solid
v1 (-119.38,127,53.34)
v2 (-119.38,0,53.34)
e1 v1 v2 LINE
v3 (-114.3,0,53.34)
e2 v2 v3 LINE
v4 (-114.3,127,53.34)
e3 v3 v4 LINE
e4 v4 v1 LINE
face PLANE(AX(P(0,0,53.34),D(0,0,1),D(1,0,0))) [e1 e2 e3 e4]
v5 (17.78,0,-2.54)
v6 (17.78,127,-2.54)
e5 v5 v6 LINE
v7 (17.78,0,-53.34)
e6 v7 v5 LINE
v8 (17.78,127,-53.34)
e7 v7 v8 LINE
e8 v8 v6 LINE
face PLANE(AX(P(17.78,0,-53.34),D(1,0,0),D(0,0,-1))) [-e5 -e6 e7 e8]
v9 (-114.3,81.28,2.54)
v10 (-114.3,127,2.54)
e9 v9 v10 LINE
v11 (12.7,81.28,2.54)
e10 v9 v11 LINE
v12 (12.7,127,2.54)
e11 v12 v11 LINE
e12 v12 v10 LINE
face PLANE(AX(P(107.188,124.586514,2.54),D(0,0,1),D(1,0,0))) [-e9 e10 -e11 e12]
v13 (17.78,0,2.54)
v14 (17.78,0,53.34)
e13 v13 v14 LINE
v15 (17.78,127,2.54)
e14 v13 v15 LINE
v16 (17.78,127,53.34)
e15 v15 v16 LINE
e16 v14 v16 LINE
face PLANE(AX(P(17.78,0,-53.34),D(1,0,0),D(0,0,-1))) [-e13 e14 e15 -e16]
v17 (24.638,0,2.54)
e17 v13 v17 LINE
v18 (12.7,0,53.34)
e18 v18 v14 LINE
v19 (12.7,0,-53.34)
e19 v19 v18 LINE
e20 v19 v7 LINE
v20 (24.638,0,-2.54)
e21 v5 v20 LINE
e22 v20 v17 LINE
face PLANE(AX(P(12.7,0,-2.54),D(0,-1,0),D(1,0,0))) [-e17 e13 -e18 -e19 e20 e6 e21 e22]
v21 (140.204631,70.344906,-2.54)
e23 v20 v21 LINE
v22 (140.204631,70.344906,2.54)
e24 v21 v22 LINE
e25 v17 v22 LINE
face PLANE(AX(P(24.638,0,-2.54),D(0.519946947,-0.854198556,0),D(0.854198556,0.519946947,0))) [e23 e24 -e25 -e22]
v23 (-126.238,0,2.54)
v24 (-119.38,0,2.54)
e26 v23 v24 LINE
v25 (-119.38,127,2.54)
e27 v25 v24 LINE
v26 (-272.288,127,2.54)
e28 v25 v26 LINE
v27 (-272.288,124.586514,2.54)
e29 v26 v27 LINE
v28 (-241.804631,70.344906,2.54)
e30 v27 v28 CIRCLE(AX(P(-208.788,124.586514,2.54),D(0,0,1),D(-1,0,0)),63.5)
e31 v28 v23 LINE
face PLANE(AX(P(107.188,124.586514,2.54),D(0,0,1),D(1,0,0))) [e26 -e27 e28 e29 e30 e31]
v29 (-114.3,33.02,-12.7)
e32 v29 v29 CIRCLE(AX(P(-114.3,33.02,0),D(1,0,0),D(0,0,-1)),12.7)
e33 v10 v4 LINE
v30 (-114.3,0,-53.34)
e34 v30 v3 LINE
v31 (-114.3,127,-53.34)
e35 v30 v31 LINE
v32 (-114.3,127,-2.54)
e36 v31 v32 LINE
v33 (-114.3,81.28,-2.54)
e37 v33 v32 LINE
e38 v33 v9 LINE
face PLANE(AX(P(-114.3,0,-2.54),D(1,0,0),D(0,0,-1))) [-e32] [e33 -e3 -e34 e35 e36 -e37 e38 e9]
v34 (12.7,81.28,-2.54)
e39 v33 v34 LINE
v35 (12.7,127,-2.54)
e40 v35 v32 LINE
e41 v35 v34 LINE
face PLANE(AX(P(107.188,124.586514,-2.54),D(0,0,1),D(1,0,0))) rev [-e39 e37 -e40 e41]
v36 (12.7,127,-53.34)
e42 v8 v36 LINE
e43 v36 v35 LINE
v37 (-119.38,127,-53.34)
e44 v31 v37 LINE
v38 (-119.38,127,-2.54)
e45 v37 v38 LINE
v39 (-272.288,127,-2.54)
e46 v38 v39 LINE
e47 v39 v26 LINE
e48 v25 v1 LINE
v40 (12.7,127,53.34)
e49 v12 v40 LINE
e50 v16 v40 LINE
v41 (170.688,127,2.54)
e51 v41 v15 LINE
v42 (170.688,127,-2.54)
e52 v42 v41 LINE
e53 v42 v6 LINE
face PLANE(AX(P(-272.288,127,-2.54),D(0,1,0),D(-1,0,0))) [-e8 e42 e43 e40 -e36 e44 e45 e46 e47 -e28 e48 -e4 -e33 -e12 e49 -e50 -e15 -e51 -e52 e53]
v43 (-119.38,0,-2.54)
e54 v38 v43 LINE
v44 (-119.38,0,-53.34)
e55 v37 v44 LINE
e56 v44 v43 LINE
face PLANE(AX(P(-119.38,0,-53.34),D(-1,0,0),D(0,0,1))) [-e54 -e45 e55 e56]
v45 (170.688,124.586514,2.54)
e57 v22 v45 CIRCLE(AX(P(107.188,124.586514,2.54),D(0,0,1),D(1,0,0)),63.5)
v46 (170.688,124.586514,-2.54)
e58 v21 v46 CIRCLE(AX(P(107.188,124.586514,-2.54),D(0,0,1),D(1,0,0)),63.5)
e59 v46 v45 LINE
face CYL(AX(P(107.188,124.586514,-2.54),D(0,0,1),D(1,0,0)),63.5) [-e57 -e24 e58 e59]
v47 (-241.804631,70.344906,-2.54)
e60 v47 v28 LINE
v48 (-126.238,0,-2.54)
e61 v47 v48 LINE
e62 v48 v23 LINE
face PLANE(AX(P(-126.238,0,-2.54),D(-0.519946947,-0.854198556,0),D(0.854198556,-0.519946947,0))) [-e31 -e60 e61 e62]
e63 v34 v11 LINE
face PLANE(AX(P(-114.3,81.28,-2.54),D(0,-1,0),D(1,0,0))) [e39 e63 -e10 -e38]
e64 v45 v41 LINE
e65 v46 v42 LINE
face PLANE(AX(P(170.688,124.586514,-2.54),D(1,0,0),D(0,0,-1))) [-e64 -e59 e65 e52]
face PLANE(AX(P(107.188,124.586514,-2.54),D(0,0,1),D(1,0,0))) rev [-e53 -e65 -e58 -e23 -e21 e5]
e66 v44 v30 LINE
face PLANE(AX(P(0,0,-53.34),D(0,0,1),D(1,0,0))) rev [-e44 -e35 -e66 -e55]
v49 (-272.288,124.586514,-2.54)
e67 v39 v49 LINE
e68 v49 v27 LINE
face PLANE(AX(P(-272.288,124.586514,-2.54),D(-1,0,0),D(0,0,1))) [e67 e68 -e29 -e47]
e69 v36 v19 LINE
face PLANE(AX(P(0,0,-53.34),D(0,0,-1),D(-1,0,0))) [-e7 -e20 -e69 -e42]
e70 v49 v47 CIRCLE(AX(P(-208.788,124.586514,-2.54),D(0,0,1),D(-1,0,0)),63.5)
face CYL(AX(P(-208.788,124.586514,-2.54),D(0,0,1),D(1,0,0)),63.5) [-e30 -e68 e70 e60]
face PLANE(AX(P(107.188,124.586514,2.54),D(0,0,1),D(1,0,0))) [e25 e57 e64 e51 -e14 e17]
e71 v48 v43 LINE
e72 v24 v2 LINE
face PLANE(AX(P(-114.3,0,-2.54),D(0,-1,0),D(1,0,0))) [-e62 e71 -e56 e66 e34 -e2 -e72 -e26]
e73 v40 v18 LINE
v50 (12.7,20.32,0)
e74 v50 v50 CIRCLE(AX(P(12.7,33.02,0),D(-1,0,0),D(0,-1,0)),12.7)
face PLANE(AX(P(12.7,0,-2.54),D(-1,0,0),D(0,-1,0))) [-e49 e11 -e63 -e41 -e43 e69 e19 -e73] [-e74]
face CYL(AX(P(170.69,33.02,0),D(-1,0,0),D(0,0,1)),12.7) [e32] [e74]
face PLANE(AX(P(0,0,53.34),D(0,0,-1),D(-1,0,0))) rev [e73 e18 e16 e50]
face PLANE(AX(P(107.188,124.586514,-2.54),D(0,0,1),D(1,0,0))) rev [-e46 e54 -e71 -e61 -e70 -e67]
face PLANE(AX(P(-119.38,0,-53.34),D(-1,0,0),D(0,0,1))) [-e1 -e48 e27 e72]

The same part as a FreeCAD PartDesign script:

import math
import FreeCAD as App
import Part
import Sketcher
Q = App.Units.Quantity


def add_polygon(sketch, points):
    """Adds a closed chain of lines whose ends are joined by coincident constraints."""
    first, n = sketch.GeometryCount, len(points)
    for a, b in zip(points, points[1:] + points[:1]):
        sketch.addGeometry(Part.LineSegment(App.Vector(*a, 0), App.Vector(*b, 0)), False)
    for i in range(n):
        sketch.addConstraint(Sketcher.Constraint("Coincident", first + i, 2, first + (i + 1) % n, 1))

doc = App.newDocument("Part")
body = doc.addObject("PartDesign::Body", "Body")

# Sketch on XY plane
sketch1 = body.newObject("Sketcher::SketchObject", "Sketch")
sketch1.AttachmentSupport = (doc.getObject("XY_Plane"), [""])
sketch1.MapMode = "FlatFace"
sketch1.addGeometry(Part.LineSegment(App.Vector(-126.2, 0, 0), App.Vector(-114.3, 0, 0)), False)
sketch1.addGeometry(Part.LineSegment(App.Vector(-114.3, 0, 0), App.Vector(-114.3, 81.3, 0)), False)
sketch1.addGeometry(Part.LineSegment(App.Vector(-114.3, 81.3, 0), App.Vector(12.7, 81.3, 0)), False)
sketch1.addGeometry(Part.LineSegment(App.Vector(12.7, 81.3, 0), App.Vector(12.7, 0, 0)), False)
sketch1.addGeometry(Part.LineSegment(App.Vector(12.7, 0, 0), App.Vector(24.6, 0, 0)), False)
sketch1.addGeometry(Part.LineSegment(App.Vector(24.6, 0, 0), App.Vector(140.2, 70.3, 0)), False)
sketch1.addGeometry(Part.ArcOfCircle(Part.Circle(App.Vector(107.2, 124.6, 0), App.Vector(0, 0, 1), 63.5), math.radians(-59), math.radians(0)), False)
sketch1.addGeometry(Part.LineSegment(App.Vector(170.7, 124.6, 0), App.Vector(170.7, 127, 0)), False)
sketch1.addGeometry(Part.LineSegment(App.Vector(170.7, 127, 0), App.Vector(-272.3, 127, 0)), False)
sketch1.addGeometry(Part.LineSegment(App.Vector(-272.3, 127, 0), App.Vector(-272.3, 124.6, 0)), False)
sketch1.addGeometry(Part.ArcOfCircle(Part.Circle(App.Vector(-208.8, 124.6, 0), App.Vector(0, 0, 1), 63.5), math.radians(-180), math.radians(-121)), False)
sketch1.addGeometry(Part.LineSegment(App.Vector(-241.8, 70.3, 0), App.Vector(-126.2, 0, 0)), False)
sketch1.addConstraint(Sketcher.Constraint("Coincident", 0, 2, 1, 1))
sketch1.addConstraint(Sketcher.Constraint("Coincident", 1, 2, 2, 1))
sketch1.addConstraint(Sketcher.Constraint("Coincident", 2, 2, 3, 1))
sketch1.addConstraint(Sketcher.Constraint("Coincident", 3, 2, 4, 1))
sketch1.addConstraint(Sketcher.Constraint("Coincident", 4, 2, 5, 1))
sketch1.addConstraint(Sketcher.Constraint("Tangent", 5, 2, 6, 1))
sketch1.addConstraint(Sketcher.Constraint("Tangent", 6, 2, 7, 1))
sketch1.addConstraint(Sketcher.Constraint("Coincident", 7, 2, 8, 1))
sketch1.addConstraint(Sketcher.Constraint("Coincident", 8, 2, 9, 1))
sketch1.addConstraint(Sketcher.Constraint("Tangent", 9, 2, 10, 1))
sketch1.addConstraint(Sketcher.Constraint("Tangent", 10, 2, 11, 1))
sketch1.addConstraint(Sketcher.Constraint("Coincident", 11, 2, 0, 1))
sketch1.addConstraint(Sketcher.Constraint("Horizontal", 0))
sketch1.addConstraint(Sketcher.Constraint("Vertical", 1))
sketch1.addConstraint(Sketcher.Constraint("Horizontal", 2))
sketch1.addConstraint(Sketcher.Constraint("Vertical", 3))
sketch1.addConstraint(Sketcher.Constraint("Horizontal", 4))
sketch1.addConstraint(Sketcher.Constraint("Vertical", 7))
sketch1.addConstraint(Sketcher.Constraint("Horizontal", 8))
sketch1.addConstraint(Sketcher.Constraint("Vertical", 9))
sketch1.addConstraint(Sketcher.Constraint("Equal", 6, 10))
sketch1.addConstraint(Sketcher.Constraint("PointOnObject", 0, 2, -1))
sketch1.addConstraint(Sketcher.Constraint("PointOnObject", 3, 2, -1))
sketch1.addConstraint(Sketcher.Constraint("Horizontal", 6, 3, 10, 3))
sketch1.addConstraint(Sketcher.Constraint("Horizontal", 5, 2, 10, 2))
sketch1.addConstraint(Sketcher.Constraint("Equal", 0, 4))
sketch1.addConstraint(Sketcher.Constraint("Radius", 6, Q("2.5 in")))
sketch1.addConstraint(Sketcher.Constraint("DistanceX", 2, 1, 2, 2, Q("5 in")))
sketch1.addConstraint(Sketcher.Constraint("DistanceY", 1, 1, 1, 2, Q("3.2 in")))
sketch1.addConstraint(Sketcher.Constraint("DistanceY", -1, 1, 7, 2, Q("5 in")))
sketch1.addConstraint(Sketcher.Constraint("DistanceX", 0, 1, 0, 2, Q("0.47 in")))
sketch1.addConstraint(Sketcher.Constraint("DistanceX", 8, 2, 8, 1, Q("17.44 in")))
sketch1.addConstraint(Sketcher.Constraint("DistanceX", 0, 2, -1, 1, Q("4.5 in")))
sketch1.addConstraint(Sketcher.Constraint("Distance", 5, 135.292468))
pad1 = body.newObject("PartDesign::Pad", "Pad")
pad1.Profile = sketch1
pad1.Type = "TwoLengths"
pad1.Length = Q("0.1 in")
pad1.Length2 = Q("0.1 in")

# Sketch on XY plane
sketch2 = body.newObject("Sketcher::SketchObject", "Sketch001")
sketch2.AttachmentSupport = (doc.getObject("XY_Plane"), [""])
sketch2.MapMode = "FlatFace"
sketch2.AttachmentOffset = App.Placement(App.Vector(0, 0, 0.1 * 25.4), App.Rotation())
add_polygon(sketch2, [(-119, 127), (-119, 0), (-114, 0), (-114, 127)])  # lines 0-3
add_polygon(sketch2, [(13, 127), (13, 0), (18, 0), (18, 127)])  # lines 4-7
sketch2.addConstraint(Sketcher.Constraint("Vertical", 0))
sketch2.addConstraint(Sketcher.Constraint("Horizontal", 1))
sketch2.addConstraint(Sketcher.Constraint("Vertical", 2))
sketch2.addConstraint(Sketcher.Constraint("Horizontal", 3))
sketch2.addConstraint(Sketcher.Constraint("Vertical", 4))
sketch2.addConstraint(Sketcher.Constraint("Horizontal", 5))
sketch2.addConstraint(Sketcher.Constraint("Vertical", 6))
sketch2.addConstraint(Sketcher.Constraint("Horizontal", 7))
sketch2.addConstraint(Sketcher.Constraint("PointOnObject", 0, 2, -1))
sketch2.addConstraint(Sketcher.Constraint("PointOnObject", 4, 2, -1))
sketch2.addConstraint(Sketcher.Constraint("Horizontal", 3, 2, 6, 2))
sketch2.addConstraint(Sketcher.Constraint("Equal", 3, 5))
sketch2.addConstraint(Sketcher.Constraint("DistanceY", 0, 2, 0, 1, Q("5 in")))
sketch2.addConstraint(Sketcher.Constraint("DistanceX", 1, 1, 1, 2, Q("0.2 in")))
sketch2.addConstraint(Sketcher.Constraint("DistanceX", 1, 2, 4, 2, Q("5 in")))
sketch2.addConstraint(Sketcher.Constraint("DistanceX", 0, 2, -1, 1, Q("4.7 in")))
pad2 = body.newObject("PartDesign::Pad", "Pad001")
pad2.Profile = sketch2
pad2.Type = "TwoLengths"
pad2.Length = Q("2 in")
pad2.Length2 = Q("2.2 in")

# Sketch on YZ plane
sketch3 = body.newObject("Sketcher::SketchObject", "Sketch002")
sketch3.AttachmentSupport = (doc.getObject("YZ_Plane"), [""])
sketch3.MapMode = "FlatFace"
sketch3.AttachmentOffset = App.Placement(App.Vector(0, 0, -4.5 * 25.4), App.Rotation())
sketch3.addGeometry(Part.Circle(App.Vector(33, 0, 0), App.Vector(0, 0, 1), 13), False)
sketch3.addConstraint(Sketcher.Constraint("PointOnObject", 0, 3, -1))
sketch3.addConstraint(Sketcher.Constraint("Diameter", 0, Q("1 in")))
sketch3.addConstraint(Sketcher.Constraint("DistanceX", -1, 1, 0, 3, Q("1.3 in")))
pad3 = body.newObject("PartDesign::Pad", "Pad002")
pad3.Profile = sketch3
pad3.Type = "UpToFirst"

doc.recompute()
